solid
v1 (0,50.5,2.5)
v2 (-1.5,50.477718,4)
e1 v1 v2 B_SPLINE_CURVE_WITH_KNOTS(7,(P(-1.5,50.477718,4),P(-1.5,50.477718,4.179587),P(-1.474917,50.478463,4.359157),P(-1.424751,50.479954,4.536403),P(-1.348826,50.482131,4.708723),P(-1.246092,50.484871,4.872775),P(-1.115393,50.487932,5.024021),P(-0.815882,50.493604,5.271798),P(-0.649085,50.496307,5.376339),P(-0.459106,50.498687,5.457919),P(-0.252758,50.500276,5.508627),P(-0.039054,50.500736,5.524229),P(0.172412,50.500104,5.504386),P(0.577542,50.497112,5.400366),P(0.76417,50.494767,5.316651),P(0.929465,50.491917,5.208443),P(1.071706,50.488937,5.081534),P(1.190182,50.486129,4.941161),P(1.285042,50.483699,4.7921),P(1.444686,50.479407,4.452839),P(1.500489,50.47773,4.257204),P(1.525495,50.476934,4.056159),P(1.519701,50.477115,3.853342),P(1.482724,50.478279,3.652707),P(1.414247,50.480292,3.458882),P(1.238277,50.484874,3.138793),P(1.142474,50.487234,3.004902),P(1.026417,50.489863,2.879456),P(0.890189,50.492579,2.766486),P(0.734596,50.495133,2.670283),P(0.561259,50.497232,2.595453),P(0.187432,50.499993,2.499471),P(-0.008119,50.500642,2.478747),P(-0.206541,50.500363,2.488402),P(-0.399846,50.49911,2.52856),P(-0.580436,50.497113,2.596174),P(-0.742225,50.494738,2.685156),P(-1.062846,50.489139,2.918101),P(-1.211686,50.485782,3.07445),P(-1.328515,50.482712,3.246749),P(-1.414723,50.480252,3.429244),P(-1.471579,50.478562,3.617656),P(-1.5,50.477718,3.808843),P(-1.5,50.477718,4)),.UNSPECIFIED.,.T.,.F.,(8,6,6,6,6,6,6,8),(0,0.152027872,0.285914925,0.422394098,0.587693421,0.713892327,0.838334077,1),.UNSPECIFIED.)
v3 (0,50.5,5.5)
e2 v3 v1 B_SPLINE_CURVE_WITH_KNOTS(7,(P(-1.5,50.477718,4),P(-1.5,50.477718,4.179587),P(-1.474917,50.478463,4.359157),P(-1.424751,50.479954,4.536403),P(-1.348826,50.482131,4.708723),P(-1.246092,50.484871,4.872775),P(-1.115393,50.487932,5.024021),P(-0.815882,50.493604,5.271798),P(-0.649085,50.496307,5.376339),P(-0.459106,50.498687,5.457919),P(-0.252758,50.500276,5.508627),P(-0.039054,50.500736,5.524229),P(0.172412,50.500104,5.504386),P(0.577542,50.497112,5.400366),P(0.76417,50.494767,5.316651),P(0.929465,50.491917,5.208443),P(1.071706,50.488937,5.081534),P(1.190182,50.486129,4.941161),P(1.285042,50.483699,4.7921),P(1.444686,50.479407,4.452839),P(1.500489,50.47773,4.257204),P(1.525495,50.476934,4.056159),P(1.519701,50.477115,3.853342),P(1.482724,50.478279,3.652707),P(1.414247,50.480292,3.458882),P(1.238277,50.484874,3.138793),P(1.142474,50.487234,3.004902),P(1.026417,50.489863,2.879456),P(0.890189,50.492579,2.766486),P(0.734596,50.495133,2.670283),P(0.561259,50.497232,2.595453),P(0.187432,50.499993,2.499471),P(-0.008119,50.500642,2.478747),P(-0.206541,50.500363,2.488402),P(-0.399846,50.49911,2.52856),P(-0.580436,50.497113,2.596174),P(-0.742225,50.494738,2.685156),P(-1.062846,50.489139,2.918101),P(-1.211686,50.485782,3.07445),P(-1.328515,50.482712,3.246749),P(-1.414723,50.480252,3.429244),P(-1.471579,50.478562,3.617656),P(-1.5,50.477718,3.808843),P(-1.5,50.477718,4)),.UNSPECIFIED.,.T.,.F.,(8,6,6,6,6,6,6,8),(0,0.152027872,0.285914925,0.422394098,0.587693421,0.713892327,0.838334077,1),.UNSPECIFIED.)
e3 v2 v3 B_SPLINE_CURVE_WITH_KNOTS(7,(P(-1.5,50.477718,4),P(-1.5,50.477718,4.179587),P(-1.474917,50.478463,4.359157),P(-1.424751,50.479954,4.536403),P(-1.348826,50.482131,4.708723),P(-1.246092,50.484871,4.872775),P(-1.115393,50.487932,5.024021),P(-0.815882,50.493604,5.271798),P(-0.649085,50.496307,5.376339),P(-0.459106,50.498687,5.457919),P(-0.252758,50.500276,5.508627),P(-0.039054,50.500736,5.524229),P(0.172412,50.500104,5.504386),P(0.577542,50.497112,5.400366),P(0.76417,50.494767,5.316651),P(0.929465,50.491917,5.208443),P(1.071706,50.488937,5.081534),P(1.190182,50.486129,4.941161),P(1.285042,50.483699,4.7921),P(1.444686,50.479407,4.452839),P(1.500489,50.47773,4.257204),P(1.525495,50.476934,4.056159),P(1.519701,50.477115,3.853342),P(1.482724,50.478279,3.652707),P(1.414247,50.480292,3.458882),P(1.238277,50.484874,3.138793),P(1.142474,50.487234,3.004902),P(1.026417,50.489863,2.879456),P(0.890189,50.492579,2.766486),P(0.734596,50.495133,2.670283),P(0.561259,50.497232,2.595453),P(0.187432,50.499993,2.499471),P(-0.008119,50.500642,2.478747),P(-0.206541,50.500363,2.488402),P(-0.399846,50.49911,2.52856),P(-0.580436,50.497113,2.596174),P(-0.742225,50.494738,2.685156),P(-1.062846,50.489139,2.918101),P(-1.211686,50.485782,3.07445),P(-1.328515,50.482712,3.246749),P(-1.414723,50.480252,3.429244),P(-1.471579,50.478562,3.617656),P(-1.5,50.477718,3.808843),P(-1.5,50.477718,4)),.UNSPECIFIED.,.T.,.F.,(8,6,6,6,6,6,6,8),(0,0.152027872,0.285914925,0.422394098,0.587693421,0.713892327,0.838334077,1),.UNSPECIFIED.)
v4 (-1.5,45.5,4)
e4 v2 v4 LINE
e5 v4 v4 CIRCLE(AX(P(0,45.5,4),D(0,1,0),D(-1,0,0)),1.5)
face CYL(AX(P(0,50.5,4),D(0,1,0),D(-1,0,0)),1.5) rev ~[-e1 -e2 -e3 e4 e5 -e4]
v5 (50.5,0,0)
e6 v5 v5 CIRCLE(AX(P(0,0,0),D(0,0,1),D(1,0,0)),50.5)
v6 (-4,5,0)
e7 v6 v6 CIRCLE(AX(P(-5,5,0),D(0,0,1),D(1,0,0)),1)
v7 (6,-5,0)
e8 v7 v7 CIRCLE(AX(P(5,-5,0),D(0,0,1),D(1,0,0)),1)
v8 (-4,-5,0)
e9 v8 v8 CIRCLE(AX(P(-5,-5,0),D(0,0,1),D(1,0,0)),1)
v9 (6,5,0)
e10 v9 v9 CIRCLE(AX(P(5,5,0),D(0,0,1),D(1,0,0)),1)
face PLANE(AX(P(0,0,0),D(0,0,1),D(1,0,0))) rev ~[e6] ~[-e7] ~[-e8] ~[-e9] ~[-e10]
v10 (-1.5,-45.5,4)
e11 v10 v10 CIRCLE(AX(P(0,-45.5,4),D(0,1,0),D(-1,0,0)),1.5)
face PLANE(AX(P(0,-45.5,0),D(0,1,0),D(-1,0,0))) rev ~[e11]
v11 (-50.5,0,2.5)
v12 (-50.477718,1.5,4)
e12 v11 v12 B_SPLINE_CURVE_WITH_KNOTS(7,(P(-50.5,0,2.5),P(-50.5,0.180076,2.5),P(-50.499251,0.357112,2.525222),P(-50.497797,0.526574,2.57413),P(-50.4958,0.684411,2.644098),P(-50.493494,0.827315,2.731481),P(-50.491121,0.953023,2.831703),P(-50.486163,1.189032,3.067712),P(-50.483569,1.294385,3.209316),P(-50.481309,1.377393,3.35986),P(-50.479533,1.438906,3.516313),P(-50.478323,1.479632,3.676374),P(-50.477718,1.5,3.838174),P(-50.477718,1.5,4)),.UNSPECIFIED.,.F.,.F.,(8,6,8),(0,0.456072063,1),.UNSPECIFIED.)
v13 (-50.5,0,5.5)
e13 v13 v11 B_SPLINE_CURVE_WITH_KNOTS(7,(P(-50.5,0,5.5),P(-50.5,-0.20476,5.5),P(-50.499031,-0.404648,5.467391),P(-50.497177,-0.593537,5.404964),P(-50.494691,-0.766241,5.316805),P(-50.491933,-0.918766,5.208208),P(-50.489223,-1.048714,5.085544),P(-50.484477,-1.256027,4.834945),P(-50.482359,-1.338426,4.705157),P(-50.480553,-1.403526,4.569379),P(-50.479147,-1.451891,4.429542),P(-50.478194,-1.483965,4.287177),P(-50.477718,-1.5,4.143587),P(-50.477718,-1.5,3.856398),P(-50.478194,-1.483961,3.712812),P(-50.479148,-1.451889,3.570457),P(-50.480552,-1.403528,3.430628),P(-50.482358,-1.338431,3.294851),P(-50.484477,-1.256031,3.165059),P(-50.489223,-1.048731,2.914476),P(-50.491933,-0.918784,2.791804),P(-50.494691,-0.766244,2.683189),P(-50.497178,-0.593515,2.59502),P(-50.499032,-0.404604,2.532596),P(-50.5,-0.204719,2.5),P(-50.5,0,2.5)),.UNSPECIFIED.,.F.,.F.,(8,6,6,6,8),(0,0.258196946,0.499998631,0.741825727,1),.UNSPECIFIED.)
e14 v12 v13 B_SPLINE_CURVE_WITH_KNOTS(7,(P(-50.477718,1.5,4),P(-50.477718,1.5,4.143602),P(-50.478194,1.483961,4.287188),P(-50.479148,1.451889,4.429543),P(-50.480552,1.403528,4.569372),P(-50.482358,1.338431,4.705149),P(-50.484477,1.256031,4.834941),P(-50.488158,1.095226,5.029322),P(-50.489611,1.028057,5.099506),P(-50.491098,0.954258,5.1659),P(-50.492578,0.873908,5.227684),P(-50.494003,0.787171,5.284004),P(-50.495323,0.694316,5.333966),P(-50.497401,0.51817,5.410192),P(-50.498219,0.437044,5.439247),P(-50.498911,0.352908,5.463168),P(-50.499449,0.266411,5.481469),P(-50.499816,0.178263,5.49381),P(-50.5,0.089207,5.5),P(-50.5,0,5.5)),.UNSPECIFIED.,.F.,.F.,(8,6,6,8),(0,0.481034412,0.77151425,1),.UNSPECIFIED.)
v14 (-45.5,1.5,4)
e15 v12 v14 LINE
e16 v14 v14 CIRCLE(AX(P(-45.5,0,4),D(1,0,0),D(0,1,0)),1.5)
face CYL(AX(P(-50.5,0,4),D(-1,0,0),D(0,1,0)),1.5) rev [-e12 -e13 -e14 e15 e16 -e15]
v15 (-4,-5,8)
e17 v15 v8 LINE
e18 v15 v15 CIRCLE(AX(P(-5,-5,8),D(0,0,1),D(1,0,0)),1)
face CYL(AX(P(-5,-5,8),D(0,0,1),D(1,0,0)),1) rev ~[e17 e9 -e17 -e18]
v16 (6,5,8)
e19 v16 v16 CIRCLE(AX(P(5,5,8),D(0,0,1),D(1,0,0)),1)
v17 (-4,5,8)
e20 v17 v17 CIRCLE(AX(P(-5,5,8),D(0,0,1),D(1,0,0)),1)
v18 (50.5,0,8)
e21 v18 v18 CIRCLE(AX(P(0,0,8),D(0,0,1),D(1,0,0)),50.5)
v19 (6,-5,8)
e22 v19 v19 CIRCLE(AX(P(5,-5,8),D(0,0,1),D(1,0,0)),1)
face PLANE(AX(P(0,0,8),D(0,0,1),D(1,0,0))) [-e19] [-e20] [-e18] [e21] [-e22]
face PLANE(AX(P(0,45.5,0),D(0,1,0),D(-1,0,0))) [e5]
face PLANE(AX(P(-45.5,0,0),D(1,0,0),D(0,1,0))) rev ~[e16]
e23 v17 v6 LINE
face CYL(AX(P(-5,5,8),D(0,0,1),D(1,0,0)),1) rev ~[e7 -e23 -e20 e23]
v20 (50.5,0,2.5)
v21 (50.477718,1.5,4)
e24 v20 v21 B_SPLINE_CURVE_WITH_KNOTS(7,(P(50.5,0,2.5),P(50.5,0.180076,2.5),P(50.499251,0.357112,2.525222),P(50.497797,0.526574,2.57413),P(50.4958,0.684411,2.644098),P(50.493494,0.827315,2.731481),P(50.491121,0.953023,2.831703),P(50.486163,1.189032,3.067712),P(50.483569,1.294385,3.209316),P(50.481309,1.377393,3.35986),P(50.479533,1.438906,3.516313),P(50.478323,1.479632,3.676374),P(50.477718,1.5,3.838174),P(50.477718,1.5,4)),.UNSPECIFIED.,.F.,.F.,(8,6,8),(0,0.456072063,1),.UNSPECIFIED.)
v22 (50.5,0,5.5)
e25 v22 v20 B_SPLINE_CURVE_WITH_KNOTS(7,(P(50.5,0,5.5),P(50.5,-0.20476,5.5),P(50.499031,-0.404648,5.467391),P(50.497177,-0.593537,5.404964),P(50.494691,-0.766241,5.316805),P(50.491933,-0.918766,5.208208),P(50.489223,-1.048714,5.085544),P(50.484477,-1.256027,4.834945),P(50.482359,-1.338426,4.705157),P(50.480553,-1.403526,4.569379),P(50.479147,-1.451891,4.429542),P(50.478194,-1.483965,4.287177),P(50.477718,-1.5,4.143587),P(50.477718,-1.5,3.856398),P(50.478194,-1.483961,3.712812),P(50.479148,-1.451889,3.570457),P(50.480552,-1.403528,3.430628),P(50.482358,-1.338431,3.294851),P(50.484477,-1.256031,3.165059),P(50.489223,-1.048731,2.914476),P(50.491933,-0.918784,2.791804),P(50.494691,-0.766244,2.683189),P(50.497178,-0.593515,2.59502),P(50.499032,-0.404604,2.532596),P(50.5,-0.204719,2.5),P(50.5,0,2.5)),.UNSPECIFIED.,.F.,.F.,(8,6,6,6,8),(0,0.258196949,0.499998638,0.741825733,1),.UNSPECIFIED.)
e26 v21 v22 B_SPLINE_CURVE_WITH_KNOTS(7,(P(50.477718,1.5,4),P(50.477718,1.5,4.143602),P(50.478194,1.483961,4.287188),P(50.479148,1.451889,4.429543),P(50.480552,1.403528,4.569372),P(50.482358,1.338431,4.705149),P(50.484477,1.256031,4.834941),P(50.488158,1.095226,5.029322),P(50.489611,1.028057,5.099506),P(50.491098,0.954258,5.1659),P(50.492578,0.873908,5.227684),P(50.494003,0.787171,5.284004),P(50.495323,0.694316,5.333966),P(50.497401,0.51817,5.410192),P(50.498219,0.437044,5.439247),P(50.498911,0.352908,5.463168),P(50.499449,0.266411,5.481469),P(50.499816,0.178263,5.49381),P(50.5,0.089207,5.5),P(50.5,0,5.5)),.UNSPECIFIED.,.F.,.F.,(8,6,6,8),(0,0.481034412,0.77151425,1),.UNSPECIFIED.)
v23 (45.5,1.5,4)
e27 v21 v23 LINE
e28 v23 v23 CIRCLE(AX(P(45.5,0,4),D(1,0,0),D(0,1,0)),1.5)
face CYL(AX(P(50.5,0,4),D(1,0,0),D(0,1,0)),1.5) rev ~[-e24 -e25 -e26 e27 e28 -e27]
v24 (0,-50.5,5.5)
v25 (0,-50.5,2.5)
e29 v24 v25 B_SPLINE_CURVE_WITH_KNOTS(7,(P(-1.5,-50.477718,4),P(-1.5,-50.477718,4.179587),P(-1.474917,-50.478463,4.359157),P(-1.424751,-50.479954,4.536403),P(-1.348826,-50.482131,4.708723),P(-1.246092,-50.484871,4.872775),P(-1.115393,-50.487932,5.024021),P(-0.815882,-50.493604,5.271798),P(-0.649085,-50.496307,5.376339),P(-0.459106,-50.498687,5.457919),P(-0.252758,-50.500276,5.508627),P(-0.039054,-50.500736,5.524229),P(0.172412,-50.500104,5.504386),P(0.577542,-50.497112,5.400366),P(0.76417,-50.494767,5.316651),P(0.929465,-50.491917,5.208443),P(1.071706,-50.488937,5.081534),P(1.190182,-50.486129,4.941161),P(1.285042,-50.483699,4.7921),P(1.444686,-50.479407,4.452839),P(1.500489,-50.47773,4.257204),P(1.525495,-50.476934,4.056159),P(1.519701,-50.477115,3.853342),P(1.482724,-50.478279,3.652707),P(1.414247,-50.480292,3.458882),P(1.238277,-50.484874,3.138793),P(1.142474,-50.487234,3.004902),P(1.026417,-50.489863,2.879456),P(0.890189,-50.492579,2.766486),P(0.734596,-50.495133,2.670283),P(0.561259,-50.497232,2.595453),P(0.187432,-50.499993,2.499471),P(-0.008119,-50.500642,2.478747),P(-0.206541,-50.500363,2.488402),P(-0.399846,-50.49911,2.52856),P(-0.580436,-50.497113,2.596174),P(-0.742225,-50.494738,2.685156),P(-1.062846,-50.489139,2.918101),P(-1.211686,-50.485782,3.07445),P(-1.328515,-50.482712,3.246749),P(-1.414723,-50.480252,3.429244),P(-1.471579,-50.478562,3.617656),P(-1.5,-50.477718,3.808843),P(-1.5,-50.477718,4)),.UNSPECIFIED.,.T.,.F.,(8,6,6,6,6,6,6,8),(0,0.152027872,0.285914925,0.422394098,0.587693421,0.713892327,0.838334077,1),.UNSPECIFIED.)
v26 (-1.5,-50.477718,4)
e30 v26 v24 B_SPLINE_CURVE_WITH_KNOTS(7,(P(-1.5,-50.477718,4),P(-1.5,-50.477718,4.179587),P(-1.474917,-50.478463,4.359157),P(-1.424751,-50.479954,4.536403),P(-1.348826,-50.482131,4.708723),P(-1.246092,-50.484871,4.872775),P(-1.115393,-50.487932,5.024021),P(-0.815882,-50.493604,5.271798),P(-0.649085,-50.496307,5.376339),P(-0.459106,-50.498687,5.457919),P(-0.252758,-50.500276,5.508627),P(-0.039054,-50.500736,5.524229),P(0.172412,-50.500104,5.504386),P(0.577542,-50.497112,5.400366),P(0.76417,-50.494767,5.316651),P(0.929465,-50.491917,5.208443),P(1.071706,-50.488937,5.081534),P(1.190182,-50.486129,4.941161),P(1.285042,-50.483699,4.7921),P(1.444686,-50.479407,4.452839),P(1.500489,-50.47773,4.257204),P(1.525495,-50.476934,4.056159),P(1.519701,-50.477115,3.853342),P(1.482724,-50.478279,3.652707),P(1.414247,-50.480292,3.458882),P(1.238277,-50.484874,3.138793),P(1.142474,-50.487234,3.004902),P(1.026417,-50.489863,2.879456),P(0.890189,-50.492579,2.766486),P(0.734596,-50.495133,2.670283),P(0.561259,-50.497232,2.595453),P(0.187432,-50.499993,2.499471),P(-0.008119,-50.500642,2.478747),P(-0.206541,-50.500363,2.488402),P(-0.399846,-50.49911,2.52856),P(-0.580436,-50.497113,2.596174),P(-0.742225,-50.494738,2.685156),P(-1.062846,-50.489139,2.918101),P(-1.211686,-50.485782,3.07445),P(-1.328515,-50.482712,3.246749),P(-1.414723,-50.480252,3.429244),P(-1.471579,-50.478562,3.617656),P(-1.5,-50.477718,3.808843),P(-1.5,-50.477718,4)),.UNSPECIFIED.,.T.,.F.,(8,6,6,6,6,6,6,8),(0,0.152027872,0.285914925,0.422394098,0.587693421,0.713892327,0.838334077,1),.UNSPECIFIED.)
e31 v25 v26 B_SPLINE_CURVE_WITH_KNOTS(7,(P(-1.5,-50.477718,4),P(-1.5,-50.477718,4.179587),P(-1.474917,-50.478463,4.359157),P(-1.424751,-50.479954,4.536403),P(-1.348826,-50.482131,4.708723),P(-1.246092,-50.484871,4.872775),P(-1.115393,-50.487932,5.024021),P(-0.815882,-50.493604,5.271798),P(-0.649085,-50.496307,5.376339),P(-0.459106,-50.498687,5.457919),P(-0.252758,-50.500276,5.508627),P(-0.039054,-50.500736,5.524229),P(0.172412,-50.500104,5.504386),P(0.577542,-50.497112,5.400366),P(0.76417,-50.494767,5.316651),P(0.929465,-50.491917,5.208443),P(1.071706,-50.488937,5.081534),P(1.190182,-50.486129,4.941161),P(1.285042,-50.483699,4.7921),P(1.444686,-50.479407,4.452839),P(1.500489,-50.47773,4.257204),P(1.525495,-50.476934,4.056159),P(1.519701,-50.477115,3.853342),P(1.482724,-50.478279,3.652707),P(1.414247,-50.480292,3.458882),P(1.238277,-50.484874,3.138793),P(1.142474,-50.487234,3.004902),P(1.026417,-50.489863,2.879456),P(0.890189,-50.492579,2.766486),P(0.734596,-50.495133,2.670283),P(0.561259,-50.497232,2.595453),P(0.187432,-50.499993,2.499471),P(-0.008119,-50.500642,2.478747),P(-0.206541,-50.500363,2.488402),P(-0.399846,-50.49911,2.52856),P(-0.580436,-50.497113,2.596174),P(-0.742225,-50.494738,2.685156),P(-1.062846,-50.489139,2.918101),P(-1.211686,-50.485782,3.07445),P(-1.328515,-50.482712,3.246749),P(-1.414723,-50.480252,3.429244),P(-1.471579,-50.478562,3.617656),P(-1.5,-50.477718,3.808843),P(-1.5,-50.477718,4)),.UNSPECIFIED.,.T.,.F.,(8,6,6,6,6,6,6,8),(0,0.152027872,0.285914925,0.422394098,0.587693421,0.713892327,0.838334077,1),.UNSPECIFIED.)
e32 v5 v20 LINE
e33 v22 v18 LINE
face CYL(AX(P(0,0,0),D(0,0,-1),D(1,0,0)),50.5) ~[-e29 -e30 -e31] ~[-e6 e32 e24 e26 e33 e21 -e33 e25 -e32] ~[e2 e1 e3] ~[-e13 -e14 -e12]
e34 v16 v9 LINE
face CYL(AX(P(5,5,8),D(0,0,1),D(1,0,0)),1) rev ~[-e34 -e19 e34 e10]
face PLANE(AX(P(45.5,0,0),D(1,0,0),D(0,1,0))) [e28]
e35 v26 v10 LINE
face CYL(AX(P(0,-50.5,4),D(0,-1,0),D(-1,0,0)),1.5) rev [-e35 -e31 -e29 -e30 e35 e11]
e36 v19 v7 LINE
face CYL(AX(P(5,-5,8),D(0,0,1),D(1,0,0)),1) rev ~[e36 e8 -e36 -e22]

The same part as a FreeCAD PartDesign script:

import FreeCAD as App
import Part
import Sketcher

V = App.Vector
Q = App.Units.Quantity

doc = App.newDocument("Part")
body = doc.addObject("PartDesign::Body", "Body")

sketch1 = body.newObject("Sketcher::SketchObject", "Sketch")
sketch1.AttachmentSupport = (doc.getObject("XY_Plane"), [""])
sketch1.MapMode = "FlatFace"
sketch1.addGeometry(Part.Circle(V(0, 0, 0), V(0, 0, 1), 50.5), False)
sketch1.addConstraint(Sketcher.Constraint("Coincident", 0, 3, -1, 1))
sketch1.addConstraint(Sketcher.Constraint("Diameter", 0, Q("101 mm")))
pad1 = body.newObject("PartDesign::Pad", "Pad")
pad1.Profile = sketch1
pad1.Length = 8

sketch2 = body.newObject("Sketcher::SketchObject", "Sketch001")
sketch2.AttachmentSupport = (doc.getObject("XY_Plane"), [""])
sketch2.MapMode = "FlatFace"
sketch2.AttachmentOffset = App.Placement(V(0, 0, 8), App.Rotation())
sketch2.addGeometry(Part.Circle(V(-5, 5, 0), V(0, 0, 1), 1), False)
sketch2.addGeometry(Part.Circle(V(5, 5, 0), V(0, 0, 1), 1), False)
sketch2.addGeometry(Part.Circle(V(5, -5, 0), V(0, 0, 1), 1), False)
sketch2.addGeometry(Part.Circle(V(-5, -5, 0), V(0, 0, 1), 1), False)
sketch2.addConstraint(Sketcher.Constraint("Equal", 0, 1))
sketch2.addConstraint(Sketcher.Constraint("Equal", 1, 2))
sketch2.addConstraint(Sketcher.Constraint("Equal", 2, 3))
sketch2.addConstraint(Sketcher.Constraint("Symmetric", 0, 3, 2, 3, -1, 1))
sketch2.addConstraint(Sketcher.Constraint("Symmetric", 1, 3, 3, 3, -1, 1))
sketch2.addConstraint(Sketcher.Constraint("Symmetric", 0, 3, 1, 3, -2))
sketch2.addConstraint(Sketcher.Constraint("Diameter", 0, Q("2 mm")))
sketch2.addConstraint(Sketcher.Constraint("DistanceX", 0, 3, 1, 3, Q("10 mm")))
sketch2.addConstraint(Sketcher.Constraint("DistanceY", 2, 3, 1, 3, Q("10 mm")))
pocket1 = body.newObject("PartDesign::Pocket", "Pocket")
pocket1.Profile = sketch2
pocket1.Length = 8

sketch3 = body.newObject("Sketcher::SketchObject", "Sketch002")
sketch3.AttachmentSupport = (doc.getObject("YZ_Plane"), [""])
sketch3.MapMode = "FlatFace"
sketch3.AttachmentOffset = App.Placement(V(0, 0, 50.5), App.Rotation())
sketch3.addGeometry(Part.Circle(V(0, 4, 0), V(0, 0, 1), 1.5), False)
sketch3.addConstraint(Sketcher.Constraint("PointOnObject", 0, 3, -2))
sketch3.addConstraint(Sketcher.Constraint("Diameter", 0, Q("3 mm")))
sketch3.addConstraint(Sketcher.Constraint("DistanceY", -1, 1, 0, 3, Q("4 mm")))
pocket2 = body.newObject("PartDesign::Pocket", "Pocket001")
pocket2.Profile = sketch3
pocket2.Length = 5

sketch4 = body.newObject("Sketcher::SketchObject", "Sketch003")
sketch4.AttachmentSupport = (doc.getObject("YZ_Plane"), [""])
sketch4.MapMode = "FlatFace"
sketch4.AttachmentOffset = App.Placement(V(0, 0, -50.5), App.Rotation())
sketch4.addGeometry(Part.Circle(V(0, 4, 0), V(0, 0, 1), 1.5), False)
sketch4.addConstraint(Sketcher.Constraint("PointOnObject", 0, 3, -2))
sketch4.addConstraint(Sketcher.Constraint("Diameter", 0, Q("3 mm")))
sketch4.addConstraint(Sketcher.Constraint("DistanceY", -1, 1, 0, 3, Q("4 mm")))
pocket3 = body.newObject("PartDesign::Pocket", "Pocket002")
pocket3.Profile = sketch4
pocket3.Length = 5
pocket3.Reversed = True

sketch5 = body.newObject("Sketcher::SketchObject", "Sketch004")
sketch5.AttachmentSupport = (doc.getObject("XZ_Plane"), [""])
sketch5.MapMode = "FlatFace"
sketch5.AttachmentOffset = App.Placement(V(0, 0, -50.5), App.Rotation())
sketch5.addGeometry(Part.Circle(V(0, 4, 0), V(0, 0, 1), 1.5), False)
sketch5.addConstraint(Sketcher.Constraint("PointOnObject", 0, 3, -2))
sketch5.addConstraint(Sketcher.Constraint("Diameter", 0, Q("3 mm")))
sketch5.addConstraint(Sketcher.Constraint("DistanceY", -1, 1, 0, 3, Q("4 mm")))
pocket4 = body.newObject("PartDesign::Pocket", "Pocket003")
pocket4.Profile = sketch5
pocket4.Length = 5
pocket4.Reversed = True

sketch6 = body.newObject("Sketcher::SketchObject", "Sketch005")
sketch6.AttachmentSupport = (doc.getObject("XZ_Plane"), [""])
sketch6.MapMode = "FlatFace"
sketch6.AttachmentOffset = App.Placement(V(0, 0, 50.5), App.Rotation())
sketch6.addGeometry(Part.Circle(V(0, 4, 0), V(0, 0, 1), 1.5), False)
sketch6.addConstraint(Sketcher.Constraint("PointOnObject", 0, 3, -2))
sketch6.addConstraint(Sketcher.Constraint("Diameter", 0, Q("3 mm")))
sketch6.addConstraint(Sketcher.Constraint("DistanceY", -1, 1, 0, 3, Q("4 mm")))
pocket5 = body.newObject("PartDesign::Pocket", "Pocket004")
pocket5.Profile = sketch6
pocket5.Length = 5

doc.recompute()
